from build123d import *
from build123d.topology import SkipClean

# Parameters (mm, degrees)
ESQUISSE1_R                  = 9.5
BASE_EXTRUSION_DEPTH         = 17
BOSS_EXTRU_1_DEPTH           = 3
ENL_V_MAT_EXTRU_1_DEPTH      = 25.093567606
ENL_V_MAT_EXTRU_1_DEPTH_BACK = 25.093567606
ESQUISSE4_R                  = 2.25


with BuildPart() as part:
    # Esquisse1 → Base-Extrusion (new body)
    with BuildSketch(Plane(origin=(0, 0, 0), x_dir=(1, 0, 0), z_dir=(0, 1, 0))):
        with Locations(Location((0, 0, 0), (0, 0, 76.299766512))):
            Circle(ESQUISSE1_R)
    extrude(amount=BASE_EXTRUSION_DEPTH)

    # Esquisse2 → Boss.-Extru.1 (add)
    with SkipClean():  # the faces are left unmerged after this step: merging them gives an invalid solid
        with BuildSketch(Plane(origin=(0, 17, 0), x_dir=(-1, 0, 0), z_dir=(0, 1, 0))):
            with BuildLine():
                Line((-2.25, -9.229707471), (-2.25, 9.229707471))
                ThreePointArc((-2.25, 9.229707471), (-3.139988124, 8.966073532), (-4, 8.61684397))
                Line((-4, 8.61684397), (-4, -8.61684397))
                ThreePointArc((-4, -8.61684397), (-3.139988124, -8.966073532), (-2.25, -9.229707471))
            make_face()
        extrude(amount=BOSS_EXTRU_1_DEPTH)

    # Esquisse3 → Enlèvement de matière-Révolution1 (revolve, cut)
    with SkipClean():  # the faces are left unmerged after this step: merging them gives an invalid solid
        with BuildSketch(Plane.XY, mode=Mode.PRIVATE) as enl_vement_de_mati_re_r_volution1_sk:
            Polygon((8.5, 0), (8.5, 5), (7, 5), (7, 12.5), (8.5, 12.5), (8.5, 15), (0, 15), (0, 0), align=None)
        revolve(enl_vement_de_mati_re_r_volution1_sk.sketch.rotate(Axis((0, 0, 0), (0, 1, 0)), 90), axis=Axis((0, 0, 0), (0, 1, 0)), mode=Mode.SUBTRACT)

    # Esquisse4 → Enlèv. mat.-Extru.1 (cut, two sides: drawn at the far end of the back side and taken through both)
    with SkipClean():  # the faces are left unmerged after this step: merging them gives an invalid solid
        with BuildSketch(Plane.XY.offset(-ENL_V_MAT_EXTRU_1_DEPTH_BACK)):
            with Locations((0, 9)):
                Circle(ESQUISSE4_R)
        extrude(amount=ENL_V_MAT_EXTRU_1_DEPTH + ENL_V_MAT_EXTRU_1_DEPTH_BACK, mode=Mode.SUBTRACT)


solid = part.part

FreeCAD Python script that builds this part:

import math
import FreeCAD as App
import Part
import Sketcher


def add_polygon(sketch, points):
    """Adds a closed chain of lines whose ends are joined by coincident constraints."""
    first, n = sketch.GeometryCount, len(points)
    for a, b in zip(points, points[1:] + points[:1]):
        sketch.addGeometry(Part.LineSegment(App.Vector(*a, 0), App.Vector(*b, 0)), False)
    for i in range(n):
        sketch.addConstraint(Sketcher.Constraint("Coincident", first + i, 2, first + (i + 1) % n, 1))

doc = App.newDocument("Part")
body = doc.addObject("PartDesign::Body", "Body")

sketch1 = body.newObject("Sketcher::SketchObject", "Sketch")
sketch1.AttachmentSupport = (doc.getObject("XZ_Plane"), [""])
sketch1.MapMode = "FlatFace"
sketch1.addGeometry(Part.Circle(App.Vector(0, 0, 0), App.Vector(0, 0, 1), 10), False)
sketch1.addConstraint([
    Sketcher.Constraint("Coincident", 0, 3, -1, 1),
    Sketcher.Constraint("Diameter", 0, 19.0),
])
pad1 = body.newObject("PartDesign::Pad", "Pad")
pad1.Profile = sketch1
pad1.Length = 17
pad1.Reversed = True

sketch2 = body.newObject("Sketcher::SketchObject", "Sketch001")
sketch2.AttachmentSupport = (doc.getObject("XZ_Plane"), [""])
sketch2.MapMode = "FlatFace"
sketch2.AttachmentOffset = App.Placement(App.Vector(0, 0, -17), App.Rotation())
sketch2.addGeometry([
    Part.LineSegment(App.Vector(2.2, -9.2, 0), App.Vector(2.2, 9.2, 0)),
    Part.ArcOfCircle(Part.Circle(App.Vector(0, 0, 0), App.Vector(0, 0, 1), 9.5), math.radians(65.1), math.radians(76.3)),
    Part.LineSegment(App.Vector(4, 8.6, 0), App.Vector(4, -8.6, 0)),
    Part.ArcOfCircle(Part.Circle(App.Vector(0, 0, 0), App.Vector(0, 0, 1), 9.5), math.radians(-76.3), math.radians(-65.1)),
], False)
sketch2.addConstraint([
    Sketcher.Constraint("Coincident", 0, 2, 1, 2),
    Sketcher.Constraint("Coincident", 1, 1, 2, 1),
    Sketcher.Constraint("Coincident", 2, 2, 3, 2),
    Sketcher.Constraint("Coincident", 3, 1, 0, 1),
    Sketcher.Constraint("Vertical", 0),
    Sketcher.Constraint("Vertical", 2),
    Sketcher.Constraint("Coincident", 1, 3, -1, 1),
    Sketcher.Constraint("Coincident", 3, 3, -1, 1),
    Sketcher.Constraint("Equal", 1, 3),
    Sketcher.Constraint("Radius", 1, 9.5),
    Sketcher.Constraint("DistanceX", -1, 1, 1, 1, 4.0),
    Sketcher.Constraint("DistanceX", -1, 1, 0, 2, 2.25),
])
pad2 = body.newObject("PartDesign::Pad", "Pad001")
pad2.Profile = sketch2
pad2.Length = 3
pad2.Reversed = True

sketch3 = body.newObject("Sketcher::SketchObject", "Sketch002")
sketch3.AttachmentSupport = (doc.getObject("XY_Plane"), [""])
sketch3.MapMode = "FlatFace"
add_polygon(sketch3, [(8.5, 0), (8.5, 5), (7, 5), (7, 12.5), (8.5, 12.5), (8.5, 15), (0, 15), (0, 0)])
sketch3.addConstraint([
    Sketcher.Constraint("Vertical", 0),
    Sketcher.Constraint("Horizontal", 1),
    Sketcher.Constraint("Vertical", 2),
    Sketcher.Constraint("Horizontal", 3),
    Sketcher.Constraint("Vertical", 4),
    Sketcher.Constraint("Horizontal", 5),
    Sketcher.Constraint("Vertical", 6),
    Sketcher.Constraint("Horizontal", 7),
    Sketcher.Constraint("Coincident", 6, 2, -1, 1),
    Sketcher.Constraint("Vertical", 0, 2, 3, 2),
    Sketcher.Constraint("DistanceY", 0, 1, 0, 2, 5.0),
    Sketcher.Constraint("DistanceY", 6, 2, 6, 1, 15.0),
    Sketcher.Constraint("DistanceX", 1, 2, 1, 1, 1.5),
    Sketcher.Constraint("DistanceX", 5, 2, 5, 1, 8.5),
    Sketcher.Constraint("DistanceY", 2, 1, 2, 2, 7.5),
])
groove = body.newObject("PartDesign::Groove", "Groove")
groove.Profile = sketch3
groove.ReferenceAxis = (sketch3, ["V_Axis"])
groove.Angle = 360

sketch4 = body.newObject("Sketcher::SketchObject", "Sketch003")
sketch4.AttachmentSupport = (doc.getObject("XY_Plane"), [""])
sketch4.MapMode = "FlatFace"
sketch4.addGeometry(Part.Circle(App.Vector(0, 9, 0), App.Vector(0, 0, 1), 2.2), False)
sketch4.addConstraint([
    Sketcher.Constraint("PointOnObject", 0, 3, -2),
    Sketcher.Constraint("Diameter", 0, 4.5),
    Sketcher.Constraint("DistanceY", -1, 1, 0, 3, 9.0),
])
pocket1 = body.newObject("PartDesign::Pocket", "Pocket")
pocket1.Profile = sketch4
pocket1.Type = "ThroughAll"
pocket1.Midplane = True

doc.recompute()
